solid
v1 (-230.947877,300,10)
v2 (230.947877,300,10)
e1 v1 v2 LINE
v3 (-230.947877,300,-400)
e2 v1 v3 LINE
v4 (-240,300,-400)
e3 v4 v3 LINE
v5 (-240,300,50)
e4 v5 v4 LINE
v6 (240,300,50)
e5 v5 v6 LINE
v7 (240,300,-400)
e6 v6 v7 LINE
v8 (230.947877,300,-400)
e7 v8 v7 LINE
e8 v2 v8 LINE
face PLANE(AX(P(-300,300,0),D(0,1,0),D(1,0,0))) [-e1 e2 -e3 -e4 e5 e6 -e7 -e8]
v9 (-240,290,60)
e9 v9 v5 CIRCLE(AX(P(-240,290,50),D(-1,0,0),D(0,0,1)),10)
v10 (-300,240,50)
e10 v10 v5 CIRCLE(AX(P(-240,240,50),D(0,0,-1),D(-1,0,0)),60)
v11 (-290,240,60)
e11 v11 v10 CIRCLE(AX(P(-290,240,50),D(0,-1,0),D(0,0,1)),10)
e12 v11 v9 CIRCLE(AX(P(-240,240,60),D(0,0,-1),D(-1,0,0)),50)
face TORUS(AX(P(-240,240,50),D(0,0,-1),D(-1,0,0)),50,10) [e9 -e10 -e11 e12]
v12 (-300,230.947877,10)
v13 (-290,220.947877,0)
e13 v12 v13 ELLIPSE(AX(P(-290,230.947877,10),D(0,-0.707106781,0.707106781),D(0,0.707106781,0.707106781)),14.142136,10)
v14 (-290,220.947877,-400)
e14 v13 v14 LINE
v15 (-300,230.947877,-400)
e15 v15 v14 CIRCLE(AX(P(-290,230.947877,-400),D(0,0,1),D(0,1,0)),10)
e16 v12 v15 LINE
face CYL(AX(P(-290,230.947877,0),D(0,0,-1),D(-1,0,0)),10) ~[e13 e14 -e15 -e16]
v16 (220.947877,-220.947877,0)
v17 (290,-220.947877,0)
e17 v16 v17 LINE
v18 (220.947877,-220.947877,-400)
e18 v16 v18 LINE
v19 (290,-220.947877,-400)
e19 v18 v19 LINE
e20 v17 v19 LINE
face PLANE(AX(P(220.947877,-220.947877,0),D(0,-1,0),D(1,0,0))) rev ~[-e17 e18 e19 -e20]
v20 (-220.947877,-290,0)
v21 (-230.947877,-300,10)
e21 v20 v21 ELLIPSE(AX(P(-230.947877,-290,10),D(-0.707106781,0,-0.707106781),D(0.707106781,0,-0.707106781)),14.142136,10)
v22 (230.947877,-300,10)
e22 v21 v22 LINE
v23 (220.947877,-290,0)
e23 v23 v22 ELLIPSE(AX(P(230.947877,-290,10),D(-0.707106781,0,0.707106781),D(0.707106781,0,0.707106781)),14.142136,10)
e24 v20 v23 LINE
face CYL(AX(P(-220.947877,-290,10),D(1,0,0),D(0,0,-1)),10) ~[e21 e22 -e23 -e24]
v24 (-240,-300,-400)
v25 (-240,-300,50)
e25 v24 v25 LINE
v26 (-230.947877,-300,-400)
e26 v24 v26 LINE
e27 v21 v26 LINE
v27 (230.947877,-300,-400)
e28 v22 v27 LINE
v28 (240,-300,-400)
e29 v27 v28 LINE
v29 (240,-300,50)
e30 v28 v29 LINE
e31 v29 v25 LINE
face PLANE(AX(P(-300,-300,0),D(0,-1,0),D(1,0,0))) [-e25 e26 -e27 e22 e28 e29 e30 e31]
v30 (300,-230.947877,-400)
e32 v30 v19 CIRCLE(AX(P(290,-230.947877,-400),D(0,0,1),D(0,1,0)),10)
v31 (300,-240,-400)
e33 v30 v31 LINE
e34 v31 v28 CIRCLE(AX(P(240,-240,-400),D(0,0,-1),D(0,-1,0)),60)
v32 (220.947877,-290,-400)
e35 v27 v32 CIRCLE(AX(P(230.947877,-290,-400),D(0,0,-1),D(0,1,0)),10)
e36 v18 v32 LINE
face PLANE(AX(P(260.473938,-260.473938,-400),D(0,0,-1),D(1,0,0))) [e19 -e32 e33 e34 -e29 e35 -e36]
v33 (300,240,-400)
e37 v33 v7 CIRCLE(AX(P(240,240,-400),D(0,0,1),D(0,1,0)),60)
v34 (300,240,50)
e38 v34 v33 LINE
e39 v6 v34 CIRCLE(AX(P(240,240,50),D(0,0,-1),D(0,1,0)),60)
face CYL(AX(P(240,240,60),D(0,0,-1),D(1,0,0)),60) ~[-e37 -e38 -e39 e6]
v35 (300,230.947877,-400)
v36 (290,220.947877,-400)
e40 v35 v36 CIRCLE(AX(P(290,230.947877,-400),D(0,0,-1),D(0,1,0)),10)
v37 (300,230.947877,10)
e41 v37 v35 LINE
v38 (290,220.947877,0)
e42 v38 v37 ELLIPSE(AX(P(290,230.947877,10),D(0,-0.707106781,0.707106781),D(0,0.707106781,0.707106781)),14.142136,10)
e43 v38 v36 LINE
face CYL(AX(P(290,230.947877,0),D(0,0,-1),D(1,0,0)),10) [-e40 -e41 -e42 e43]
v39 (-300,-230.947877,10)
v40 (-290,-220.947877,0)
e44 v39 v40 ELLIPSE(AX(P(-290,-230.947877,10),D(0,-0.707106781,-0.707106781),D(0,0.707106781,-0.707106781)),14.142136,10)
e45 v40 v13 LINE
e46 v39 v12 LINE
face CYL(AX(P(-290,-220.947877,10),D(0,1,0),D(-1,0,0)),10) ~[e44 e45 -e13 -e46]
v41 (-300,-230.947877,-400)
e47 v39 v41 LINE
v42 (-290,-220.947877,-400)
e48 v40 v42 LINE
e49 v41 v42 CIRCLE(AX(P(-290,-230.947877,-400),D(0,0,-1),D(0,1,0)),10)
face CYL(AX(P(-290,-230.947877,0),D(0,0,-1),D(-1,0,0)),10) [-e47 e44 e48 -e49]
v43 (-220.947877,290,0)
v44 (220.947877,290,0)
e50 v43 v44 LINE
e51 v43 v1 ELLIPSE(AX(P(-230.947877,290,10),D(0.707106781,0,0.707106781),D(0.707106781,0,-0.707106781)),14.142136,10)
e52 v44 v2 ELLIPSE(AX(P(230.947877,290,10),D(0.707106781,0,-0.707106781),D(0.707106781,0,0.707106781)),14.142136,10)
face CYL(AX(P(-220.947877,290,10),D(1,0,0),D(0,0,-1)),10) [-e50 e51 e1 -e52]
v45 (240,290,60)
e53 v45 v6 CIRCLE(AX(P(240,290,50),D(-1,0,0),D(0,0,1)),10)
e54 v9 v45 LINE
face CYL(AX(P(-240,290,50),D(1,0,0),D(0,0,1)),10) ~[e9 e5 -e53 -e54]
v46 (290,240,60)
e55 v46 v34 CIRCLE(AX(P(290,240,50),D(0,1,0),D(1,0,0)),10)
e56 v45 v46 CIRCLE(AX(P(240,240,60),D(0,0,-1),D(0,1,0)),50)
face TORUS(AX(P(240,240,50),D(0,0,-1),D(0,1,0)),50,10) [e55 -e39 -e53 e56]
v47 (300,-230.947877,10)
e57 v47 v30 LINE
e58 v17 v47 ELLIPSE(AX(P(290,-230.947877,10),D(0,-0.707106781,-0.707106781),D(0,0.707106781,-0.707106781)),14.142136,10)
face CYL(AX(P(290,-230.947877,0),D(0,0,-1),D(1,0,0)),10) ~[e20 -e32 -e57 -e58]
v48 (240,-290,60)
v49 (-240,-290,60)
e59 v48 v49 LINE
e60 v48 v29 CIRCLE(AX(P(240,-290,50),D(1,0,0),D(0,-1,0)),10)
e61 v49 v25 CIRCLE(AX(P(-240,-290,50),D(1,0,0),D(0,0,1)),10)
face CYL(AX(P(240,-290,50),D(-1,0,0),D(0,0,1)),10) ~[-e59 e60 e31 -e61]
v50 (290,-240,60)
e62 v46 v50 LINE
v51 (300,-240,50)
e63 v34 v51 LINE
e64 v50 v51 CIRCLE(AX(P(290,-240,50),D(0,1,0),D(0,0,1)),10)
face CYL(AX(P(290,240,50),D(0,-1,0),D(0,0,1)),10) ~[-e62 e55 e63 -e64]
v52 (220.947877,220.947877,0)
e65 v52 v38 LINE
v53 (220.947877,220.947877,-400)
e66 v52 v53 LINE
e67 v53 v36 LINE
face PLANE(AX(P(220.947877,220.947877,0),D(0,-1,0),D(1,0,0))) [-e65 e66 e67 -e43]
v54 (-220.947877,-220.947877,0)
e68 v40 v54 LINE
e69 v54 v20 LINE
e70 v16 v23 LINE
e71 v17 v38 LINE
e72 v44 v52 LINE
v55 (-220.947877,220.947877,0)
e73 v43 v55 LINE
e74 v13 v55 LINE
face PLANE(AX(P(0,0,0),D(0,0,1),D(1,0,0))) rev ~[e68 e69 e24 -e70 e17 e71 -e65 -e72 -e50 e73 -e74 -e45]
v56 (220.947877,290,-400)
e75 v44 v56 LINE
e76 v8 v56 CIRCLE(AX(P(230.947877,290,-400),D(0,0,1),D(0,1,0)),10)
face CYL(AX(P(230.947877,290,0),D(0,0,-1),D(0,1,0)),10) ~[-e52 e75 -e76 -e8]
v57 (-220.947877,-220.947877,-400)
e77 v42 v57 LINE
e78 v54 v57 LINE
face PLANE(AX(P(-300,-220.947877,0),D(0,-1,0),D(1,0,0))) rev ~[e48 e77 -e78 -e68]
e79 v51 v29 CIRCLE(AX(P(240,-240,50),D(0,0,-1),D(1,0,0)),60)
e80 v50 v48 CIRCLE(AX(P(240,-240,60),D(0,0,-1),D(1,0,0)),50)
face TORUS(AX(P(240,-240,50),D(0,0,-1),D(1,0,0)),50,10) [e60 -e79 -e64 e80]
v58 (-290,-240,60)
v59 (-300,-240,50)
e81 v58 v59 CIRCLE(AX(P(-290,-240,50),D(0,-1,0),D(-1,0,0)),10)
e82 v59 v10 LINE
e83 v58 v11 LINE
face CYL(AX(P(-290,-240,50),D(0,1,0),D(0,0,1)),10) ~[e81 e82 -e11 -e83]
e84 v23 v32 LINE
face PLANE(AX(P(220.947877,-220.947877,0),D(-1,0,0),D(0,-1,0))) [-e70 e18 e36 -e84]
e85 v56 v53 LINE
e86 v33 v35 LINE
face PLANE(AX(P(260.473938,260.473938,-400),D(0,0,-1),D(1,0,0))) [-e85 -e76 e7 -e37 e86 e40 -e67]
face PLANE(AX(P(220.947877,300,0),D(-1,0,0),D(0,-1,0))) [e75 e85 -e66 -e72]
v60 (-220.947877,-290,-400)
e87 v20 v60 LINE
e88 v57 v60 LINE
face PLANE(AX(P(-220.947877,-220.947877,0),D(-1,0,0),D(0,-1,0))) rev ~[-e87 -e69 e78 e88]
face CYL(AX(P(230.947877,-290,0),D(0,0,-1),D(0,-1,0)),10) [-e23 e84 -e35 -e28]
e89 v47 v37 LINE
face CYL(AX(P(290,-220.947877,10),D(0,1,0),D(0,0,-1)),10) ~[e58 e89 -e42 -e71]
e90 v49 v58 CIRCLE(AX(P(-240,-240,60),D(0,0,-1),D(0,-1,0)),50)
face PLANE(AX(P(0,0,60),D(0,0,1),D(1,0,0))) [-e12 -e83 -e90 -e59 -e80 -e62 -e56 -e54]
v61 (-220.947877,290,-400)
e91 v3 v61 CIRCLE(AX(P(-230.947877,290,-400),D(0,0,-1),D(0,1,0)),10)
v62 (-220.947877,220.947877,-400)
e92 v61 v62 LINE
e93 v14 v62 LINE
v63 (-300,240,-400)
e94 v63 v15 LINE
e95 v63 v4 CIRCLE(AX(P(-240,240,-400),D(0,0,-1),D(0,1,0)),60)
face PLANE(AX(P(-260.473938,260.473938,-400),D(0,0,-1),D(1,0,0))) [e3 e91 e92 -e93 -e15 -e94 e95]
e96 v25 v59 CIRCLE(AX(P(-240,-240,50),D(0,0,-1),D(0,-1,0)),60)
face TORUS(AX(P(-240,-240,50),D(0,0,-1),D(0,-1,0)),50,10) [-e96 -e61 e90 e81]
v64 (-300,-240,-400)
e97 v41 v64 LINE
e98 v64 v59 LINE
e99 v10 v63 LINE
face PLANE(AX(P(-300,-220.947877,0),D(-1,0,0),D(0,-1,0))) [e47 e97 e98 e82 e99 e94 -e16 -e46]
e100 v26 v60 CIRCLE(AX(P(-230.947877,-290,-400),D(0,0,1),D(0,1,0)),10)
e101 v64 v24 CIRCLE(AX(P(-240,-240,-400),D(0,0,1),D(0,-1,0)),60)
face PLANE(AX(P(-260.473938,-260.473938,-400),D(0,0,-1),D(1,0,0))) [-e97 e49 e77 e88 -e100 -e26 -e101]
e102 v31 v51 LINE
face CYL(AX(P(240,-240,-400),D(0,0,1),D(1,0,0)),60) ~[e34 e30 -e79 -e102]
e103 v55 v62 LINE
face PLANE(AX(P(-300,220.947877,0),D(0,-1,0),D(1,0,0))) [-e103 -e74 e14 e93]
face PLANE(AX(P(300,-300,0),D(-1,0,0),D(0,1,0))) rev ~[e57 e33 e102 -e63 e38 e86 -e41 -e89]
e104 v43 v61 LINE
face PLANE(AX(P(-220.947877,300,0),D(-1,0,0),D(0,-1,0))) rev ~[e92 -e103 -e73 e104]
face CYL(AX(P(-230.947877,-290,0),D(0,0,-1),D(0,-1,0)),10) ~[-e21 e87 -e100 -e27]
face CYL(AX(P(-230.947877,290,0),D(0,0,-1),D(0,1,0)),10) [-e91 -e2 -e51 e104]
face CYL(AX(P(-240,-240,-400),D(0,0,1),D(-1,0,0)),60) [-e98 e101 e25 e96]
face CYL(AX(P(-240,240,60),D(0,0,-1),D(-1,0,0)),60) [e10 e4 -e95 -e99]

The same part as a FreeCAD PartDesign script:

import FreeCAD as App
import Part
import Sketcher
from FreeCAD import Vector


def edges_at(feature, points):
    """Names of the edges that pass closest to the given points."""
    edges = feature.Shape.Edges
    near = lambda p: min(range(len(edges)), key=lambda i: edges[i].distToShape(Part.Vertex(*p))[0])
    return sorted({f"Edge{near(p) + 1}" for p in points})

doc = App.newDocument("Part")
params = doc.addObject("Spreadsheet::Sheet", "Params")
for row, (alias, value) in enumerate([
    ("sketch1_width", "600 mm"),
    ("pad1_length", "60 mm"),
    ("pad2_length", "400 mm"),
    ("fillet_radius", "60 mm"),
    ("fillet2_radius", "10 mm"),
], start=1):
    params.set(f"A{row}", alias)
    params.set(f"B{row}", "=" + value)
    params.setAlias(f"B{row}", alias)

body = doc.addObject("PartDesign::Body", "Body")

# Sketch on XY plane
sketch1 = body.newObject("Sketcher::SketchObject", "Sketch")
sketch1.AttachmentSupport = (doc.getObject("XY_Plane"), [""])
sketch1.MapMode = "FlatFace"
sketch1.addGeometry([
    Part.LineSegment(Vector(-300, 300, 0), Vector(-300, -300, 0)),
    Part.LineSegment(Vector(-300, -300, 0), Vector(300, -300, 0)),
    Part.LineSegment(Vector(300, -300, 0), Vector(300, 300, 0)),
    Part.LineSegment(Vector(300, 300, 0), Vector(-300, 300, 0)),
], False)
sketch1.addConstraint([
    Sketcher.Constraint("Coincident", 0, 2, 1, 1),
    Sketcher.Constraint("Coincident", 1, 2, 2, 1),
    Sketcher.Constraint("Coincident", 2, 2, 3, 1),
    Sketcher.Constraint("Coincident", 3, 2, 0, 1),
    Sketcher.Constraint("Vertical", 0),
    Sketcher.Constraint("Horizontal", 1),
    Sketcher.Constraint("Vertical", 2),
    Sketcher.Constraint("Horizontal", 3),
    Sketcher.Constraint("Symmetric", 0, 2, 2, 2, -1, 1),
    Sketcher.Constraint("Equal", 3, 0),
    Sketcher.Constraint("DistanceX", 1, 1, 1, 2, 600.0),
])
sketch1.setExpression("Constraints[10]", "Params.sketch1_width")
pad1 = body.newObject("PartDesign::Pad", "Pad")
pad1.Profile = sketch1
pad1.setExpression("Length", "Params.pad1_length")

# Sketch on XY plane
sketch2 = body.newObject("Sketcher::SketchObject", "Sketch001")
sketch2.AttachmentSupport = (doc.getObject("XY_Plane"), [""])
sketch2.MapMode = "FlatFace"
sketch2.addGeometry([
    Part.LineSegment(Vector(-300, -300, 0), Vector(-300, -221, 0)),  # 0
    Part.LineSegment(Vector(-300, -221, 0), Vector(-221, -221, 0)),  # 1
    Part.LineSegment(Vector(-221, -221, 0), Vector(-221, -300, 0)),  # 2
    Part.LineSegment(Vector(-221, -300, 0), Vector(-300, -300, 0)),  # 3
    Part.LineSegment(Vector(221, -300, 0), Vector(221, -221, 0)),  # 4
    Part.LineSegment(Vector(221, -221, 0), Vector(300, -221, 0)),  # 5
    Part.LineSegment(Vector(300, -221, 0), Vector(300, -300, 0)),  # 6
    Part.LineSegment(Vector(300, -300, 0), Vector(221, -300, 0)),  # 7
    Part.LineSegment(Vector(-300, 221, 0), Vector(-300, 300, 0)),  # 8
    Part.LineSegment(Vector(-300, 300, 0), Vector(-221, 300, 0)),  # 9
    Part.LineSegment(Vector(-221, 300, 0), Vector(-221, 221, 0)),  # 10
    Part.LineSegment(Vector(-221, 221, 0), Vector(-300, 221, 0)),  # 11
    Part.LineSegment(Vector(221, 221, 0), Vector(221, 300, 0)),  # 12
    Part.LineSegment(Vector(221, 300, 0), Vector(300, 300, 0)),  # 13
    Part.LineSegment(Vector(300, 300, 0), Vector(300, 221, 0)),  # 14
    Part.LineSegment(Vector(300, 221, 0), Vector(221, 221, 0)),  # 15
], False)
sketch2.addConstraint([
    Sketcher.Constraint("Coincident", 0, 2, 1, 1),
    Sketcher.Constraint("Coincident", 1, 2, 2, 1),
    Sketcher.Constraint("Coincident", 2, 2, 3, 1),
    Sketcher.Constraint("Coincident", 3, 2, 0, 1),
    Sketcher.Constraint("Coincident", 4, 2, 5, 1),
    Sketcher.Constraint("Coincident", 5, 2, 6, 1),
    Sketcher.Constraint("Coincident", 6, 2, 7, 1),
    Sketcher.Constraint("Coincident", 7, 2, 4, 1),
    Sketcher.Constraint("Coincident", 8, 2, 9, 1),
    Sketcher.Constraint("Coincident", 9, 2, 10, 1),
    Sketcher.Constraint("Coincident", 10, 2, 11, 1),
    Sketcher.Constraint("Coincident", 11, 2, 8, 1),
    Sketcher.Constraint("Coincident", 12, 2, 13, 1),
    Sketcher.Constraint("Coincident", 13, 2, 14, 1),
    Sketcher.Constraint("Coincident", 14, 2, 15, 1),
    Sketcher.Constraint("Coincident", 15, 2, 12, 1),
    Sketcher.Constraint("Vertical", 0),
    Sketcher.Constraint("Horizontal", 1),
    Sketcher.Constraint("Vertical", 2),
    Sketcher.Constraint("Horizontal", 3),
    Sketcher.Constraint("Vertical", 4),
    Sketcher.Constraint("Horizontal", 5),
    Sketcher.Constraint("Vertical", 6),
    Sketcher.Constraint("Horizontal", 7),
    Sketcher.Constraint("Vertical", 8),
    Sketcher.Constraint("Horizontal", 9),
    Sketcher.Constraint("Vertical", 10),
    Sketcher.Constraint("Horizontal", 11),
    Sketcher.Constraint("Vertical", 12),
    Sketcher.Constraint("Horizontal", 13),
    Sketcher.Constraint("Vertical", 14),
    Sketcher.Constraint("Horizontal", 15),
    Sketcher.Constraint("Symmetric", 6, 2, 8, 2, -1, 1),
    Sketcher.Constraint("Symmetric", 4, 2, 10, 2, -1, 1),
    Sketcher.Constraint("Symmetric", 2, 2, 12, 2, -1, 1),
    Sketcher.Constraint("Symmetric", 0, 2, 14, 2, -1, 1),
    Sketcher.Constraint("Symmetric", 1, 2, 4, 2, -2),
    Sketcher.Constraint("Symmetric", 3, 2, 6, 2, -2),
    Sketcher.Constraint("Equal", 15, 0),
    Sketcher.Constraint("DistanceX", 0, 2, -1, 1, 300.0),
    Sketcher.Constraint("DistanceY", 2, 2, -1, 1, 300.0),
    Sketcher.Constraint("DistanceX", 1, 1, 1, 2, 79.052123),
])
pad2 = body.newObject("PartDesign::Pad", "Pad001")
pad2.Profile = sketch2
pad2.setExpression("Length", "Params.pad2_length")
pad2.Reversed = True
doc.recompute()

fillet = body.newObject("PartDesign::Fillet", "Fillet")
fillet.Base = (pad2, edges_at(pad2, [
    (-300, -300, -170),
    (-300, 300, -170),
    (300, 300, -170),
    (300, -300, -170),
]))
fillet.setExpression("Radius", "Params.fillet_radius")
doc.recompute()

fillet2 = body.newObject("PartDesign::Fillet", "Fillet001")
fillet2.Base = (fillet, edges_at(fillet, [
    (0, 300, 60),
    (0, 300, 0),
    (220.948, 300, -200),
    (-220.948, 300, -200),
    (-300, 0, 0),
    (-300, 220.948, -200),
    (-300, -220.948, -200),
    (0, -300, 0),
    (-220.948, -300, -200),
    (220.948, -300, -200),
    (300, 0, 0),
    (300, -220.948, -200),
    (300, 220.948, -200),
]))
fillet2.setExpression("Radius", "Params.fillet2_radius")

doc.recompute()
